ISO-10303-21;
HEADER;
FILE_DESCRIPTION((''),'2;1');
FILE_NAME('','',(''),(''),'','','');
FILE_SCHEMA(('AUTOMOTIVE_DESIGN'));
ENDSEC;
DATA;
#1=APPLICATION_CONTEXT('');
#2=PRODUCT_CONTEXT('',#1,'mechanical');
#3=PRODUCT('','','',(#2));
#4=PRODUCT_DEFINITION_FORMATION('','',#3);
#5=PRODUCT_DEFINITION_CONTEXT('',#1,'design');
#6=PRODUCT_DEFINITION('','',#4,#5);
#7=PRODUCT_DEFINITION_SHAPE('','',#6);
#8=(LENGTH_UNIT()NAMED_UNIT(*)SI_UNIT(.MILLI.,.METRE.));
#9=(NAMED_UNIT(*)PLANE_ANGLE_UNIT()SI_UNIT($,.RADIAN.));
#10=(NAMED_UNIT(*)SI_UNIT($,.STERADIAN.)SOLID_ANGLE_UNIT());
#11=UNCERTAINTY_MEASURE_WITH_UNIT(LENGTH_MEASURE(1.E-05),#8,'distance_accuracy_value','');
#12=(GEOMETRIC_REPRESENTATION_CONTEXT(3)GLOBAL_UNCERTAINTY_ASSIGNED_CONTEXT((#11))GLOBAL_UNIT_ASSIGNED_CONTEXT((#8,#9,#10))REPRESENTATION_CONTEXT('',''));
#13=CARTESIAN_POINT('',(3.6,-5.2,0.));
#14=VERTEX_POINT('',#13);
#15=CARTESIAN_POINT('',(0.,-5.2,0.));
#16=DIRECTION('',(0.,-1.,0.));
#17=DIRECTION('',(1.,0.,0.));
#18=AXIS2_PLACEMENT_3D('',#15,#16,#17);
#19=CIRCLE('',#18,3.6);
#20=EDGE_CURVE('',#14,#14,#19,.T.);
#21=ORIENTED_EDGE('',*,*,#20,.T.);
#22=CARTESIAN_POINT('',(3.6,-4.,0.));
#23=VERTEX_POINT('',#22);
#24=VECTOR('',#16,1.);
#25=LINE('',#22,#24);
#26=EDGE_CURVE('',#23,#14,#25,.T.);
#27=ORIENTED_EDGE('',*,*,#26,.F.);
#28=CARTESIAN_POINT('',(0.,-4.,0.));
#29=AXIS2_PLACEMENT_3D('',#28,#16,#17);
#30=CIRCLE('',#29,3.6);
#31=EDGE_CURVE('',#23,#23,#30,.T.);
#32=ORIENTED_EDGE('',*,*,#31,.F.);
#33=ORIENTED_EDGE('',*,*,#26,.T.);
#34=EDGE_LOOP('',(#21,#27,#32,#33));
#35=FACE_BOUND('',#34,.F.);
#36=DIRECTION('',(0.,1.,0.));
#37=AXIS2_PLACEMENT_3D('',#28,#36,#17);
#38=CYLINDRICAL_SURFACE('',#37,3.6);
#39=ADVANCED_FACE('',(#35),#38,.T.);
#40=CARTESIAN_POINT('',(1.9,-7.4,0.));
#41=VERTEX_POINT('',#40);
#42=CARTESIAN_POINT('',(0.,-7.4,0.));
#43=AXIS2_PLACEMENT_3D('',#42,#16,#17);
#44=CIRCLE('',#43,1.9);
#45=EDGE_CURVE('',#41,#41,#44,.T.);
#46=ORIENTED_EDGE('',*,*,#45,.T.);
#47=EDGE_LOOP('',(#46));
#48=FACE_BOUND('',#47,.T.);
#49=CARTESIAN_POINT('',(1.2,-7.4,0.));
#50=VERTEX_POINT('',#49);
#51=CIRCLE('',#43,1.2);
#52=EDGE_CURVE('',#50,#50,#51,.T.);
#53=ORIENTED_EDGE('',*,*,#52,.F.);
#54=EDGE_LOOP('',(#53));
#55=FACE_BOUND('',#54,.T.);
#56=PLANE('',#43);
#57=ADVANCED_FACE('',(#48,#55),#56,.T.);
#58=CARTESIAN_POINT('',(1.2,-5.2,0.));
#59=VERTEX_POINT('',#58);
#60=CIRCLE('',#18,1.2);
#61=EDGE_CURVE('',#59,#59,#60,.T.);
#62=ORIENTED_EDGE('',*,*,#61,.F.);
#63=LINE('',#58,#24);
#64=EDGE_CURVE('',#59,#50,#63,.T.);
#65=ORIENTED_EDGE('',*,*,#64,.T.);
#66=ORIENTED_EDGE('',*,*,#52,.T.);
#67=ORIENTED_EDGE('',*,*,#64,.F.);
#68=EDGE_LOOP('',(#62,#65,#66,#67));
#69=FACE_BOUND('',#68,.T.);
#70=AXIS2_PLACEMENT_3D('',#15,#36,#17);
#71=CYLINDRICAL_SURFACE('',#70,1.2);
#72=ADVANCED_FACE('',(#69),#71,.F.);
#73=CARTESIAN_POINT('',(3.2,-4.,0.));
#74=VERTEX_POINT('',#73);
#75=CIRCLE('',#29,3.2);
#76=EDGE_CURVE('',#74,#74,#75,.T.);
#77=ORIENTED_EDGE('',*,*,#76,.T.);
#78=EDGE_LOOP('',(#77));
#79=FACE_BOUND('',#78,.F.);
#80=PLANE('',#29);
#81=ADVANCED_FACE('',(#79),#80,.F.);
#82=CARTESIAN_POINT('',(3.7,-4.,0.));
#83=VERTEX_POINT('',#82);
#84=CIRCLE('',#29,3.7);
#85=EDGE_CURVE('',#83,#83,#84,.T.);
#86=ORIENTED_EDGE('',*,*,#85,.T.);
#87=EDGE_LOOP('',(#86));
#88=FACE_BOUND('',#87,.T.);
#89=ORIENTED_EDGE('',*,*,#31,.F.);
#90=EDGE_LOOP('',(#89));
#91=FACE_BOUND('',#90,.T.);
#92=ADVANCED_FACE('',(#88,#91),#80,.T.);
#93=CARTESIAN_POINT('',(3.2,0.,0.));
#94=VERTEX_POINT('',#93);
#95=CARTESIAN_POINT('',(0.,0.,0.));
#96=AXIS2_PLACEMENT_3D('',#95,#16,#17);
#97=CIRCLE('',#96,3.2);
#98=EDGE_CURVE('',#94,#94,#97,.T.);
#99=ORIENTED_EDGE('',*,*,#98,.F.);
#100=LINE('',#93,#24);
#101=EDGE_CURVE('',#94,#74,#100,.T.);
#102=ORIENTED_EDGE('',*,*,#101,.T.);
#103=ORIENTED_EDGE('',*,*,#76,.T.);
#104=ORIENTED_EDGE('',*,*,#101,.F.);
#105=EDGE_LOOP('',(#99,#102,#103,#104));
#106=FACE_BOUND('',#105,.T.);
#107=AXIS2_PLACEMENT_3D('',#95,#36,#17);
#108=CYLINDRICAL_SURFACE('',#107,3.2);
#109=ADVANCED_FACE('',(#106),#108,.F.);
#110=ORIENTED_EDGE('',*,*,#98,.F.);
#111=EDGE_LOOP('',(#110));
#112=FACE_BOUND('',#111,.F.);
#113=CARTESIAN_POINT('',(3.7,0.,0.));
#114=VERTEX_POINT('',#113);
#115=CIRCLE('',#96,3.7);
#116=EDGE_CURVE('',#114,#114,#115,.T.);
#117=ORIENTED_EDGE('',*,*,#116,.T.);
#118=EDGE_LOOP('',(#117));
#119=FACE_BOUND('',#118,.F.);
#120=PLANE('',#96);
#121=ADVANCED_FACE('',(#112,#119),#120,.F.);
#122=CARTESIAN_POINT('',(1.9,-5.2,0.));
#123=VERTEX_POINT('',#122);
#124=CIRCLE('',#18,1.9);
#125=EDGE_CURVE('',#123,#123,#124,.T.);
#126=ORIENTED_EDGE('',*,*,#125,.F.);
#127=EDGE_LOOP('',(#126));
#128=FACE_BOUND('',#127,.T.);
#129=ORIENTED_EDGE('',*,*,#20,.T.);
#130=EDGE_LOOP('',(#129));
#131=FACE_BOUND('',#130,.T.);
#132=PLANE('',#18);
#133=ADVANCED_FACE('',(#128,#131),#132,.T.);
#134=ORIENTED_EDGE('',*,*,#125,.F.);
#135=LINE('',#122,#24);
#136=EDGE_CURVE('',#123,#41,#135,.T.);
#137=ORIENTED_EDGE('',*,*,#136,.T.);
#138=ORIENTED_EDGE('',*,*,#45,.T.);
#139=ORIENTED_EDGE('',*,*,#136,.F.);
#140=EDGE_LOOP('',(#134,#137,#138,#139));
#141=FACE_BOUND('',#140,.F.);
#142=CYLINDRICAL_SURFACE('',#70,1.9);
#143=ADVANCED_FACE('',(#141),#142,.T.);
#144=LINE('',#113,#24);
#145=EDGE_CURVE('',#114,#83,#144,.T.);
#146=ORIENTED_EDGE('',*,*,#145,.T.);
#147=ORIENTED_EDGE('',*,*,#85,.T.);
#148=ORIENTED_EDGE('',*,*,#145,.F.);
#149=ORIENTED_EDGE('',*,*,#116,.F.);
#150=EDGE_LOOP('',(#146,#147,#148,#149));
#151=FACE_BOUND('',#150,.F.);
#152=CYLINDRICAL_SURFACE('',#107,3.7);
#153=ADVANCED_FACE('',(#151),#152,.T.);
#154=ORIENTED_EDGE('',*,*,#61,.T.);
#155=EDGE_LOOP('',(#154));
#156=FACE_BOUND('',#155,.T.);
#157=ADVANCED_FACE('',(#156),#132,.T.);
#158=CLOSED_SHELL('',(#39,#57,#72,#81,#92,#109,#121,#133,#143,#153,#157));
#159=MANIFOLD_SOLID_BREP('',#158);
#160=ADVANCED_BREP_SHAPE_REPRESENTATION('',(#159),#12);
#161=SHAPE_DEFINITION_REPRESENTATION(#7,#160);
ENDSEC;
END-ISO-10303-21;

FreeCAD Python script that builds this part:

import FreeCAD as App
import Part
import Sketcher

V = App.Vector

doc = App.newDocument("Part")
body = doc.addObject("PartDesign::Body", "Body")

sketch1 = body.newObject("Sketcher::SketchObject", "Sketch")
sketch1.AttachmentSupport = (doc.getObject("XZ_Plane"), [""])
sketch1.MapMode = "FlatFace"
sketch1.addGeometry([
    Part.Circle(V(0, 0, 0), V(0, 0, 1), 3.7),
    Part.Circle(V(0, 0, 0), V(0, 0, 1), 3.2),
], False)
sketch1.addConstraint([
    Sketcher.Constraint("Coincident", 0, 3, -1, 1),
    Sketcher.Constraint("Coincident", 1, 3, -1, 1),
    Sketcher.Constraint("Diameter", 0, 7.4),
    Sketcher.Constraint("Diameter", 1, 6.4),
])
pad1 = body.newObject("PartDesign::Pad", "Pad")
pad1.Profile = sketch1
pad1.Length = 4

sketch2 = body.newObject("Sketcher::SketchObject", "Sketch001")
sketch2.AttachmentSupport = (doc.getObject("XZ_Plane"), [""])
sketch2.MapMode = "FlatFace"
sketch2.AttachmentOffset = App.Placement(V(0, 0, 4), App.Rotation())
sketch2.addGeometry(Part.Circle(V(0, 0, 0), V(0, 0, 1), 3.6), False)
sketch2.addConstraint([
    Sketcher.Constraint("Coincident", 0, 3, -1, 1),
    Sketcher.Constraint("Diameter", 0, 7.2),
])
pad2 = body.newObject("PartDesign::Pad", "Pad001")
pad2.Profile = sketch2
pad2.Length = 1.2

sketch3 = body.newObject("Sketcher::SketchObject", "Sketch002")
sketch3.AttachmentSupport = (doc.getObject("XZ_Plane"), [""])
sketch3.MapMode = "FlatFace"
sketch3.AttachmentOffset = App.Placement(V(0, 0, 5.2), App.Rotation())
sketch3.addGeometry([
    Part.Circle(V(0, 0, 0), V(0, 0, 1), 1.9),
    Part.Circle(V(0, 0, 0), V(0, 0, 1), 1.2),
], False)
sketch3.addConstraint([
    Sketcher.Constraint("Coincident", 0, 3, -1, 1),
    Sketcher.Constraint("Coincident", 1, 3, -1, 1),
    Sketcher.Constraint("Diameter", 0, 3.8),
    Sketcher.Constraint("Diameter", 1, 2.4),
])
pad3 = body.newObject("PartDesign::Pad", "Pad002")
pad3.Profile = sketch3
pad3.Length = 2.2

doc.recompute()
